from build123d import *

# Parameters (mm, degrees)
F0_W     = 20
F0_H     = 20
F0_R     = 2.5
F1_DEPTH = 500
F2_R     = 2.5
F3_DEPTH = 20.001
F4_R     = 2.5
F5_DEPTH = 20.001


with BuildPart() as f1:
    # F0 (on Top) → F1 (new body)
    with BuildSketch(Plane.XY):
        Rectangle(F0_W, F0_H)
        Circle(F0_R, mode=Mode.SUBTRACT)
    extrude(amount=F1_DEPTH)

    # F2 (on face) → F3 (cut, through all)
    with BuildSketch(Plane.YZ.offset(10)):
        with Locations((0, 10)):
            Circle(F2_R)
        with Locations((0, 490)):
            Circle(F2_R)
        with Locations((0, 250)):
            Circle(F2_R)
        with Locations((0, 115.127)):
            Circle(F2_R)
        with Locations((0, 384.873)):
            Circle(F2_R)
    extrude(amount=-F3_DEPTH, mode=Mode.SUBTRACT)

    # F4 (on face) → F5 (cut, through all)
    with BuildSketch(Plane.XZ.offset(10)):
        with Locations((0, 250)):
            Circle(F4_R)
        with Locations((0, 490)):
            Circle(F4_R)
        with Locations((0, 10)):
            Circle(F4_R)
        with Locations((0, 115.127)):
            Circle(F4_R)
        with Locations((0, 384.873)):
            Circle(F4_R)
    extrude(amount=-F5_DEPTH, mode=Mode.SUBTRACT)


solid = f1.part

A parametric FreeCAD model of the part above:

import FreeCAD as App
import Part
import Sketcher
from FreeCAD import Vector
Q = App.Units.Quantity

doc = App.newDocument("Part")
body = doc.addObject("PartDesign::Body", "Body")

# Sketch on XY plane
sketch1 = doc.addObject("Sketcher::SketchObject", "Sketch")
body.addObject(sketch1)
sketch1.AttachmentSupport = (doc.XY_Plane, [""])
sketch1.MapMode = "FlatFace"
sketch1.addGeometry([
    Part.LineSegment(Vector(-10, 10, 0), Vector(-10, -10, 0)),  # 0
    Part.LineSegment(Vector(-10, -10, 0), Vector(10, -10, 0)),  # 1
    Part.LineSegment(Vector(10, -10, 0), Vector(10, 10, 0)),  # 2
    Part.LineSegment(Vector(10, 10, 0), Vector(-10, 10, 0)),  # 3
    Part.Circle(Vector(0, 0, 0), Vector(0, 0, 1), 2.5),  # 4
], False)
sketch1.addConstraint([
    Sketcher.Constraint("Coincident", 0, 2, 1, 1),
    Sketcher.Constraint("Coincident", 1, 2, 2, 1),
    Sketcher.Constraint("Coincident", 2, 2, 3, 1),
    Sketcher.Constraint("Coincident", 3, 2, 0, 1),
    Sketcher.Constraint("Vertical", 0),
    Sketcher.Constraint("Horizontal", 1),
    Sketcher.Constraint("Vertical", 2),
    Sketcher.Constraint("Horizontal", 3),
    Sketcher.Constraint("Coincident", 4, 3, -1, 1),
    Sketcher.Constraint("Symmetric", 0, 2, 2, 2, -1, 1),
    Sketcher.Constraint("Equal", 3, 0),
    Sketcher.Constraint("Diameter", 4, Q("5 mm")),
    Sketcher.Constraint("DistanceX", 1, 1, 1, 2, Q("20 mm")),
])
pad1 = doc.addObject("PartDesign::Pad", "Pad")
body.addObject(pad1)
pad1.Profile = sketch1
pad1.Length = 500

# Sketch on YZ plane
sketch2 = doc.addObject("Sketcher::SketchObject", "Sketch001")
body.addObject(sketch2)
sketch2.AttachmentSupport = (doc.YZ_Plane, [""])
sketch2.MapMode = "FlatFace"
sketch2.AttachmentOffset = App.Placement(Vector(0, 0, 10), App.Rotation())
sketch2.addGeometry([
    Part.Circle(Vector(0, 10, 0), Vector(0, 0, 1), 2.5),  # 0
    Part.Circle(Vector(0, 490, 0), Vector(0, 0, 1), 2.5),  # 1
    Part.Circle(Vector(0, 250, 0), Vector(0, 0, 1), 2.5),  # 2
    Part.Circle(Vector(0, 115.1, 0), Vector(0, 0, 1), 2.5),  # 3
    Part.Circle(Vector(0, 384.9, 0), Vector(0, 0, 1), 2.5),  # 4
], False)
sketch2.addConstraint([
    Sketcher.Constraint("Equal", 0, 1),
    Sketcher.Constraint("Equal", 1, 2),
    Sketcher.Constraint("Equal", 2, 3),
    Sketcher.Constraint("Equal", 3, 4),
    Sketcher.Constraint("PointOnObject", 0, 3, -2),
    Sketcher.Constraint("PointOnObject", 1, 3, -2),
    Sketcher.Constraint("PointOnObject", 2, 3, -2),
    Sketcher.Constraint("PointOnObject", 3, 3, -2),
    Sketcher.Constraint("PointOnObject", 4, 3, -2),
    Sketcher.Constraint("Diameter", 0, Q("5 mm")),
    Sketcher.Constraint("DistanceY", -1, 1, 0, 3, Q("10 mm")),
    Sketcher.Constraint("DistanceY", -1, 1, 1, 3, Q("490 mm")),
    Sketcher.Constraint("DistanceY", -1, 1, 2, 3, Q("250 mm")),
    Sketcher.Constraint("DistanceY", -1, 1, 3, 3, Q("115.127 mm")),
    Sketcher.Constraint("DistanceY", -1, 1, 4, 3, Q("384.873 mm")),
])
pocket1 = doc.addObject("PartDesign::Pocket", "Pocket")
body.addObject(pocket1)
pocket1.Profile = sketch2
pocket1.Type = "ThroughAll"

# Sketch on XZ plane
sketch3 = doc.addObject("Sketcher::SketchObject", "Sketch002")
body.addObject(sketch3)
sketch3.AttachmentSupport = (doc.XZ_Plane, [""])
sketch3.MapMode = "FlatFace"
sketch3.AttachmentOffset = App.Placement(Vector(0, 0, 10), App.Rotation())
sketch3.addGeometry([
    Part.Circle(Vector(0, 250, 0), Vector(0, 0, 1), 2.5),  # 0
    Part.Circle(Vector(0, 490, 0), Vector(0, 0, 1), 2.5),  # 1
    Part.Circle(Vector(0, 10, 0), Vector(0, 0, 1), 2.5),  # 2
    Part.Circle(Vector(0, 115.1, 0), Vector(0, 0, 1), 2.5),  # 3
    Part.Circle(Vector(0, 384.9, 0), Vector(0, 0, 1), 2.5),  # 4
], False)
sketch3.addConstraint([
    Sketcher.Constraint("Equal", 0, 1),
    Sketcher.Constraint("Equal", 1, 2),
    Sketcher.Constraint("Equal", 2, 3),
    Sketcher.Constraint("Equal", 3, 4),
    Sketcher.Constraint("PointOnObject", 0, 3, -2),
    Sketcher.Constraint("PointOnObject", 1, 3, -2),
    Sketcher.Constraint("PointOnObject", 2, 3, -2),
    Sketcher.Constraint("PointOnObject", 3, 3, -2),
    Sketcher.Constraint("PointOnObject", 4, 3, -2),
    Sketcher.Constraint("Diameter", 0, Q("5 mm")),
    Sketcher.Constraint("DistanceY", -1, 1, 0, 3, Q("250 mm")),
    Sketcher.Constraint("DistanceY", -1, 1, 1, 3, Q("490 mm")),
    Sketcher.Constraint("DistanceY", -1, 1, 2, 3, Q("10 mm")),
    Sketcher.Constraint("DistanceY", -1, 1, 3, 3, Q("115.127 mm")),
    Sketcher.Constraint("DistanceY", -1, 1, 4, 3, Q("384.873 mm")),
])
pocket2 = doc.addObject("PartDesign::Pocket", "Pocket001")
body.addObject(pocket2)
pocket2.Profile = sketch3
pocket2.Type = "ThroughAll"

doc.recompute()
